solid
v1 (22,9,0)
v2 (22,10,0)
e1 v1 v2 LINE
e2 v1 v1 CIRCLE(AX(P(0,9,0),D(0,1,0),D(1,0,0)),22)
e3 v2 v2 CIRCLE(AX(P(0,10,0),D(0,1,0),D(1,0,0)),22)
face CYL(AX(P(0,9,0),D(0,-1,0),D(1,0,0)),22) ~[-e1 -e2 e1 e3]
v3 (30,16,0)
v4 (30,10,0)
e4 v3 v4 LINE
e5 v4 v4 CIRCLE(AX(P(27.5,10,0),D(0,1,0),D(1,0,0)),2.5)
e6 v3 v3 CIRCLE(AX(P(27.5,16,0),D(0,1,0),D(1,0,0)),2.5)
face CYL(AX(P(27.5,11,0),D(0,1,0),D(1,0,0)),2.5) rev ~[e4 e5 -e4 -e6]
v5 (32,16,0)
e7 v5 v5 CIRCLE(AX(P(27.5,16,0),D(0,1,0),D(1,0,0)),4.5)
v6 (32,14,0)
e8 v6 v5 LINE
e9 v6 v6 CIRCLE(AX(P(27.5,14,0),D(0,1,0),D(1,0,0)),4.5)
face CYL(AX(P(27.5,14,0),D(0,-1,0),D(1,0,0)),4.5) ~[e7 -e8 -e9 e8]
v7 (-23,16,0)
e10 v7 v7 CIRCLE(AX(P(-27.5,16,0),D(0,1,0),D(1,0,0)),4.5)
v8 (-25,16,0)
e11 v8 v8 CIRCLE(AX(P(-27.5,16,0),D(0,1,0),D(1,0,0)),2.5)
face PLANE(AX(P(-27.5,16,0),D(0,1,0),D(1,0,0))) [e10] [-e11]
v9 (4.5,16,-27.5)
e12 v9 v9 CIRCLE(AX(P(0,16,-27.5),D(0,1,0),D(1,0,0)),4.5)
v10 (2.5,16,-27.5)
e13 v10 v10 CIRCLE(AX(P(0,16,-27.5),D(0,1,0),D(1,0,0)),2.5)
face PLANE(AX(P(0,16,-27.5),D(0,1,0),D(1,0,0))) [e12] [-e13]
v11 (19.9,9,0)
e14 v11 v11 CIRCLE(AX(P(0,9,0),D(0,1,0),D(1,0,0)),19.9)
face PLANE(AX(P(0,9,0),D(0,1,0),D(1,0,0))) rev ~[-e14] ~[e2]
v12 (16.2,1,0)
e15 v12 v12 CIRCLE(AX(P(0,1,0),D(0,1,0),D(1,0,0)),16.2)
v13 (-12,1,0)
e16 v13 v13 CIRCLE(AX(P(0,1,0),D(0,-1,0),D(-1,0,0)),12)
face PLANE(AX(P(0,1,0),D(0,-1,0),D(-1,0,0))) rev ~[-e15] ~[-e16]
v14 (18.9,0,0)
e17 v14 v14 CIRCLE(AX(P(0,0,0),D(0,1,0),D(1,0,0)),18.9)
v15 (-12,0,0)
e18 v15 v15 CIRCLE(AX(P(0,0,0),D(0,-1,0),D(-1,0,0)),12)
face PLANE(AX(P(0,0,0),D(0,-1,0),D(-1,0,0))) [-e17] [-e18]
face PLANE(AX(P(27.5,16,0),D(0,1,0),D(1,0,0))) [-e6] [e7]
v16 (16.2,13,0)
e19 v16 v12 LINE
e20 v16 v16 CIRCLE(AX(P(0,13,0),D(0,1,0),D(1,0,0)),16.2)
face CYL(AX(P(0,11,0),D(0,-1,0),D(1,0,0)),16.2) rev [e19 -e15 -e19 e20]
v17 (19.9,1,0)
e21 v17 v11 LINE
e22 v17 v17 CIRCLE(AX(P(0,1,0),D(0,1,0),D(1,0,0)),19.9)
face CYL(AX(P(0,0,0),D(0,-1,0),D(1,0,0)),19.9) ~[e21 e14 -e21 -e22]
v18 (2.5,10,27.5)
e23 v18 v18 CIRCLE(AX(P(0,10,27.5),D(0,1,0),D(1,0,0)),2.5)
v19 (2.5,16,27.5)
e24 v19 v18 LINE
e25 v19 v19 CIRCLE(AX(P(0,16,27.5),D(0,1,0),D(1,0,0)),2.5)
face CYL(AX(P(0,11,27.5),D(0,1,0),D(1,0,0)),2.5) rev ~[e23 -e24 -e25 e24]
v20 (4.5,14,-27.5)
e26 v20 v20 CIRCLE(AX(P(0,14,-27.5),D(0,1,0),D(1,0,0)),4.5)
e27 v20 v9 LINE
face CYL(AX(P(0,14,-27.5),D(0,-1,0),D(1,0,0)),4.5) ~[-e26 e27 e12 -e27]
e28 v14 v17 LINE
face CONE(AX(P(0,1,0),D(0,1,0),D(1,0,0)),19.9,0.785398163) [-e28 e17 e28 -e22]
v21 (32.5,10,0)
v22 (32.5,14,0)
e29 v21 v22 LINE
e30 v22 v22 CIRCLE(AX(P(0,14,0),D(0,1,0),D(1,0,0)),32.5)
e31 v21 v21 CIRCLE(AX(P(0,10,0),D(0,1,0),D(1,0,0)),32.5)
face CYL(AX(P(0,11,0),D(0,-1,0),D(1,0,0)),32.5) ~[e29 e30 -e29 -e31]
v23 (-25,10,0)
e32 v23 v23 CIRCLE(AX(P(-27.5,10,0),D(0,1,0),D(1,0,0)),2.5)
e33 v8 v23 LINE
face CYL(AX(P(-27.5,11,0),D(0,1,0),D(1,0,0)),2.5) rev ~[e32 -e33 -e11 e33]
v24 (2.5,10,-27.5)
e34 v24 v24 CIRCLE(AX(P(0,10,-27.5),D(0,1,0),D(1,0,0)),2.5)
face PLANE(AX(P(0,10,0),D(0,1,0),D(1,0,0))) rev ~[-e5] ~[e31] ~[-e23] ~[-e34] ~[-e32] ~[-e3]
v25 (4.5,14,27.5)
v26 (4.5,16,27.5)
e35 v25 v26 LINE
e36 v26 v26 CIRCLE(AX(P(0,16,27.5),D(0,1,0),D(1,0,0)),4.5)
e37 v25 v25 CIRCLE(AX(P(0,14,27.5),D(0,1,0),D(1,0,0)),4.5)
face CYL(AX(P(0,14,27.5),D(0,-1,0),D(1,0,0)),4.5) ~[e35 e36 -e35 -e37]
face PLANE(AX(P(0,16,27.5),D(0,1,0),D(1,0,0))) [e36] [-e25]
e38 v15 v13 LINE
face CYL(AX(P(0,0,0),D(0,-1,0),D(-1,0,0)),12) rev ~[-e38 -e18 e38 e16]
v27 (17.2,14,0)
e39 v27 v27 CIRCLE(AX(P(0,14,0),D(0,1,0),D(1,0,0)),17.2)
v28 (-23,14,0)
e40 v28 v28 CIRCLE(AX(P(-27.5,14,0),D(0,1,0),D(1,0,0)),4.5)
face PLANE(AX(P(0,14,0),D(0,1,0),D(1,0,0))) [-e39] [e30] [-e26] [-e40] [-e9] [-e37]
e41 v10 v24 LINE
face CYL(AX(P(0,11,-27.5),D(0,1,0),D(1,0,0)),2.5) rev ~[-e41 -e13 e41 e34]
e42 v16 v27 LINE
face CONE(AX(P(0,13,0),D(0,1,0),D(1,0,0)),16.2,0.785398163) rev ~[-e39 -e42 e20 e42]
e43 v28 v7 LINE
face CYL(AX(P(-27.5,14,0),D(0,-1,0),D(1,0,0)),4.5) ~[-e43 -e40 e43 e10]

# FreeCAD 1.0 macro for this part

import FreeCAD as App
import Part
import Sketcher

V = App.Vector
Q = App.Units.Quantity


def edges_at(feature, points):
    """Names of the edges that pass closest to the given points."""
    edges = feature.Shape.Edges
    near = lambda p: min(range(len(edges)), key=lambda i: edges[i].distToShape(Part.Vertex(*p))[0])
    return sorted({f"Edge{near(p) + 1}" for p in points})

doc = App.newDocument("Part")
body = doc.addObject("PartDesign::Body", "Body")

sketch1 = body.newObject("Sketcher::SketchObject", "Sketch")
sketch1.AttachmentSupport = (doc.getObject("XZ_Plane"), [""])
sketch1.MapMode = "FlatFace"
sketch1.addGeometry(Part.Circle(V(0, 0, 0), V(0, 0, 1), 20), False)
sketch1.addGeometry(Part.Circle(V(0, 0, 0), V(0, 0, 1), 16), False)
sketch1.addConstraint(Sketcher.Constraint("Coincident", 0, 3, -1, 1))
sketch1.addConstraint(Sketcher.Constraint("Coincident", 1, 3, -1, 1))
sketch1.addConstraint(Sketcher.Constraint("Diameter", 0, Q("39.8 mm")))
sketch1.addConstraint(Sketcher.Constraint("Diameter", 1, Q("32.4 mm")))
pad1 = body.newObject("PartDesign::Pad", "Pad")
pad1.Profile = sketch1
pad1.Length = 9
pad1.Reversed = True

sketch2 = body.newObject("Sketcher::SketchObject", "Sketch001")
sketch2.AttachmentSupport = (doc.getObject("XZ_Plane"), [""])
sketch2.MapMode = "FlatFace"
sketch2.AttachmentOffset = App.Placement(V(0, 0, -9), App.Rotation())
sketch2.addGeometry(Part.Circle(V(0, 0, 0), V(0, 0, 1), 22), False)
sketch2.addGeometry(Part.Circle(V(0, 0, 0), V(0, 0, 1), 16), False)
sketch2.addConstraint(Sketcher.Constraint("Coincident", 0, 3, -1, 1))
sketch2.addConstraint(Sketcher.Constraint("Coincident", 1, 3, -1, 1))
sketch2.addConstraint(Sketcher.Constraint("Diameter", 0, Q("44 mm")))
sketch2.addConstraint(Sketcher.Constraint("Diameter", 1, Q("32.4 mm")))
pad2 = body.newObject("PartDesign::Pad", "Pad001")
pad2.Profile = sketch2
pad2.Length = 1
pad2.Reversed = True

sketch3 = body.newObject("Sketcher::SketchObject", "Sketch002")
sketch3.AttachmentSupport = (doc.getObject("XZ_Plane"), [""])
sketch3.MapMode = "FlatFace"
sketch3.AttachmentOffset = App.Placement(V(0, 0, -10), App.Rotation())
sketch3.addGeometry(Part.Circle(V(0, 0, 0), V(0, 0, 1), 32), False)
sketch3.addGeometry(Part.Circle(V(0, 0, 0), V(0, 0, 1), 16), False)
sketch3.addConstraint(Sketcher.Constraint("Coincident", 0, 3, -1, 1))
sketch3.addConstraint(Sketcher.Constraint("Coincident", 1, 3, -1, 1))
sketch3.addConstraint(Sketcher.Constraint("Diameter", 0, Q("65 mm")))
sketch3.addConstraint(Sketcher.Constraint("Diameter", 1, Q("32.4 mm")))
pad3 = body.newObject("PartDesign::Pad", "Pad002")
pad3.Profile = sketch3
pad3.Length = 1
pad3.Reversed = True

sketch4 = body.newObject("Sketcher::SketchObject", "Sketch003")
sketch4.AttachmentSupport = (doc.getObject("XZ_Plane"), [""])
sketch4.MapMode = "FlatFace"
sketch4.AttachmentOffset = App.Placement(V(0, 0, -11), App.Rotation())
sketch4.addGeometry(Part.Circle(V(0, 0, 0), V(0, 0, 1), 32.5), False)
sketch4.addGeometry(Part.Circle(V(0, 27.5, 0), V(0, 0, 1), 2.5), False)
sketch4.addGeometry(Part.Circle(V(-27.5, 0, 0), V(0, 0, 1), 2.5), False)
sketch4.addGeometry(Part.Circle(V(0, 0, 0), V(0, 0, 1), 16.2), False)
sketch4.addGeometry(Part.Circle(V(27.5, 0, 0), V(0, 0, 1), 2.5), False)
sketch4.addGeometry(Part.Circle(V(0, -27.5, 0), V(0, 0, 1), 2.5), False)
sketch4.addConstraint(Sketcher.Constraint("Coincident", 0, 3, -1, 1))
sketch4.addConstraint(Sketcher.Constraint("Coincident", 3, 3, -1, 1))
sketch4.addConstraint(Sketcher.Constraint("Equal", 1, 2))
sketch4.addConstraint(Sketcher.Constraint("Equal", 2, 4))
sketch4.addConstraint(Sketcher.Constraint("Equal", 4, 5))
sketch4.addConstraint(Sketcher.Constraint("Symmetric", 2, 3, 4, 3, -1, 1))
sketch4.addConstraint(Sketcher.Constraint("Symmetric", 1, 3, 5, 3, -1, 1))
sketch4.addConstraint(Sketcher.Constraint("PointOnObject", 1, 3, -2))
sketch4.addConstraint(Sketcher.Constraint("PointOnObject", 2, 3, -1))
sketch4.addConstraint(Sketcher.Constraint("Diameter", 0, Q("65 mm")))
sketch4.addConstraint(Sketcher.Constraint("Diameter", 1, Q("5 mm")))
sketch4.addConstraint(Sketcher.Constraint("Diameter", 3, Q("32.4 mm")))
sketch4.addConstraint(Sketcher.Constraint("DistanceX", 2, 3, 4, 3, Q("55 mm")))
sketch4.addConstraint(Sketcher.Constraint("DistanceY", 5, 3, 1, 3, Q("55 mm")))
pad4 = body.newObject("PartDesign::Pad", "Pad003")
pad4.Profile = sketch4
pad4.Length = 3
pad4.Reversed = True

sketch5 = body.newObject("Sketcher::SketchObject", "Sketch004")
sketch5.AttachmentSupport = (doc.getObject("XZ_Plane"), [""])
sketch5.MapMode = "FlatFace"
sketch5.AttachmentOffset = App.Placement(V(0, 0, -14), App.Rotation())
sketch5.addGeometry(Part.Circle(V(0, 27.5, 0), V(0, 0, 1), 4.5), False)
sketch5.addGeometry(Part.Circle(V(0, 27.5, 0), V(0, 0, 1), 2.5), False)
sketch5.addGeometry(Part.Circle(V(0, -27.5, 0), V(0, 0, 1), 4.5), False)
sketch5.addGeometry(Part.Circle(V(0, -27.5, 0), V(0, 0, 1), 2.5), False)
sketch5.addGeometry(Part.Circle(V(27.5, 0, 0), V(0, 0, 1), 4.5), False)
sketch5.addGeometry(Part.Circle(V(27.5, 0, 0), V(0, 0, 1), 2.5), False)
sketch5.addGeometry(Part.Circle(V(-27.5, 0, 0), V(0, 0, 1), 4.5), False)
sketch5.addGeometry(Part.Circle(V(-27.5, 0, 0), V(0, 0, 1), 2.5), False)
sketch5.addConstraint(Sketcher.Constraint("Coincident", 1, 3, 0, 3))
sketch5.addConstraint(Sketcher.Constraint("Coincident", 3, 3, 2, 3))
sketch5.addConstraint(Sketcher.Constraint("Coincident", 5, 3, 4, 3))
sketch5.addConstraint(Sketcher.Constraint("Coincident", 7, 3, 6, 3))
sketch5.addConstraint(Sketcher.Constraint("Equal", 0, 2))
sketch5.addConstraint(Sketcher.Constraint("Equal", 1, 3))
sketch5.addConstraint(Sketcher.Constraint("Equal", 2, 4))
sketch5.addConstraint(Sketcher.Constraint("Equal", 3, 5))
sketch5.addConstraint(Sketcher.Constraint("Equal", 4, 6))
sketch5.addConstraint(Sketcher.Constraint("Equal", 5, 7))
sketch5.addConstraint(Sketcher.Constraint("Symmetric", 0, 3, 2, 3, -1, 1))
sketch5.addConstraint(Sketcher.Constraint("Symmetric", 4, 3, 6, 3, -1, 1))
sketch5.addConstraint(Sketcher.Constraint("PointOnObject", 0, 3, -2))
sketch5.addConstraint(Sketcher.Constraint("PointOnObject", 4, 3, -1))
sketch5.addConstraint(Sketcher.Constraint("Diameter", 0, Q("9 mm")))
sketch5.addConstraint(Sketcher.Constraint("Diameter", 1, Q("5 mm")))
sketch5.addConstraint(Sketcher.Constraint("DistanceY", 2, 3, 0, 3, Q("55 mm")))
sketch5.addConstraint(Sketcher.Constraint("DistanceX", 6, 3, 4, 3, Q("55 mm")))
pad5 = body.newObject("PartDesign::Pad", "Pad004")
pad5.Profile = sketch5
pad5.Length = 2
pad5.Reversed = True

sketch6 = body.newObject("Sketcher::SketchObject", "Sketch005")
sketch6.AttachmentSupport = (doc.getObject("XZ_Plane"), [""])
sketch6.MapMode = "FlatFace"
sketch6.addGeometry(Part.Circle(V(0, 0, 0), V(0, 0, 1), 16), False)
sketch6.addGeometry(Part.Circle(V(0, 0, 0), V(0, 0, 1), 12), False)
sketch6.addConstraint(Sketcher.Constraint("Coincident", 0, 3, -1, 1))
sketch6.addConstraint(Sketcher.Constraint("Coincident", 1, 3, -1, 1))
sketch6.addConstraint(Sketcher.Constraint("Diameter", 1, Q("24 mm")))
sketch6.addConstraint(Sketcher.Constraint("Diameter", 0, Q("32.4 mm")))
pad6 = body.newObject("PartDesign::Pad", "Pad005")
pad6.Profile = sketch6
pad6.Length = 1
pad6.Reversed = True

sketch7 = body.newObject("Sketcher::SketchObject", "Sketch006")
sketch7.AttachmentSupport = (doc.getObject("XZ_Plane"), [""])
sketch7.MapMode = "FlatFace"
sketch7.AttachmentOffset = App.Placement(V(0, 0, -11), App.Rotation())
sketch7.addGeometry(Part.Circle(V(0, 27.5, 0), V(0, 0, 1), 2.5), False)
sketch7.addGeometry(Part.Circle(V(27.5, 0, 0), V(0, 0, 1), 2.5), False)
sketch7.addGeometry(Part.Circle(V(0, -27.5, 0), V(0, 0, 1), 2.5), False)
sketch7.addGeometry(Part.Circle(V(-27.5, 0, 0), V(0, 0, 1), 2.5), False)
sketch7.addConstraint(Sketcher.Constraint("Equal", 0, 1))
sketch7.addConstraint(Sketcher.Constraint("Equal", 1, 2))
sketch7.addConstraint(Sketcher.Constraint("Equal", 2, 3))
sketch7.addConstraint(Sketcher.Constraint("Symmetric", 0, 3, 2, 3, -1, 1))
sketch7.addConstraint(Sketcher.Constraint("Symmetric", 1, 3, 3, 3, -1, 1))
sketch7.addConstraint(Sketcher.Constraint("PointOnObject", 0, 3, -2))
sketch7.addConstraint(Sketcher.Constraint("PointOnObject", 1, 3, -1))
sketch7.addConstraint(Sketcher.Constraint("Diameter", 0, Q("5 mm")))
sketch7.addConstraint(Sketcher.Constraint("DistanceY", 2, 3, 0, 3, Q("55 mm")))
sketch7.addConstraint(Sketcher.Constraint("DistanceX", 3, 3, 1, 3, Q("55 mm")))
pocket1 = body.newObject("PartDesign::Pocket", "Pocket")
pocket1.Profile = sketch7
pocket1.Length = 10
pocket1.Reversed = True
doc.recompute()

chamfer = body.newObject("PartDesign::Chamfer", "Chamfer")
chamfer.Base = (pocket1, edges_at(pocket1, [(-16.2, 14, 0)]))
chamfer.Size = 1
doc.recompute()

chamfer2 = body.newObject("PartDesign::Chamfer", "Chamfer001")
chamfer2.Base = (chamfer, edges_at(chamfer, [(-19.9, 0, 0)]))
chamfer2.Size = 1

doc.recompute()
